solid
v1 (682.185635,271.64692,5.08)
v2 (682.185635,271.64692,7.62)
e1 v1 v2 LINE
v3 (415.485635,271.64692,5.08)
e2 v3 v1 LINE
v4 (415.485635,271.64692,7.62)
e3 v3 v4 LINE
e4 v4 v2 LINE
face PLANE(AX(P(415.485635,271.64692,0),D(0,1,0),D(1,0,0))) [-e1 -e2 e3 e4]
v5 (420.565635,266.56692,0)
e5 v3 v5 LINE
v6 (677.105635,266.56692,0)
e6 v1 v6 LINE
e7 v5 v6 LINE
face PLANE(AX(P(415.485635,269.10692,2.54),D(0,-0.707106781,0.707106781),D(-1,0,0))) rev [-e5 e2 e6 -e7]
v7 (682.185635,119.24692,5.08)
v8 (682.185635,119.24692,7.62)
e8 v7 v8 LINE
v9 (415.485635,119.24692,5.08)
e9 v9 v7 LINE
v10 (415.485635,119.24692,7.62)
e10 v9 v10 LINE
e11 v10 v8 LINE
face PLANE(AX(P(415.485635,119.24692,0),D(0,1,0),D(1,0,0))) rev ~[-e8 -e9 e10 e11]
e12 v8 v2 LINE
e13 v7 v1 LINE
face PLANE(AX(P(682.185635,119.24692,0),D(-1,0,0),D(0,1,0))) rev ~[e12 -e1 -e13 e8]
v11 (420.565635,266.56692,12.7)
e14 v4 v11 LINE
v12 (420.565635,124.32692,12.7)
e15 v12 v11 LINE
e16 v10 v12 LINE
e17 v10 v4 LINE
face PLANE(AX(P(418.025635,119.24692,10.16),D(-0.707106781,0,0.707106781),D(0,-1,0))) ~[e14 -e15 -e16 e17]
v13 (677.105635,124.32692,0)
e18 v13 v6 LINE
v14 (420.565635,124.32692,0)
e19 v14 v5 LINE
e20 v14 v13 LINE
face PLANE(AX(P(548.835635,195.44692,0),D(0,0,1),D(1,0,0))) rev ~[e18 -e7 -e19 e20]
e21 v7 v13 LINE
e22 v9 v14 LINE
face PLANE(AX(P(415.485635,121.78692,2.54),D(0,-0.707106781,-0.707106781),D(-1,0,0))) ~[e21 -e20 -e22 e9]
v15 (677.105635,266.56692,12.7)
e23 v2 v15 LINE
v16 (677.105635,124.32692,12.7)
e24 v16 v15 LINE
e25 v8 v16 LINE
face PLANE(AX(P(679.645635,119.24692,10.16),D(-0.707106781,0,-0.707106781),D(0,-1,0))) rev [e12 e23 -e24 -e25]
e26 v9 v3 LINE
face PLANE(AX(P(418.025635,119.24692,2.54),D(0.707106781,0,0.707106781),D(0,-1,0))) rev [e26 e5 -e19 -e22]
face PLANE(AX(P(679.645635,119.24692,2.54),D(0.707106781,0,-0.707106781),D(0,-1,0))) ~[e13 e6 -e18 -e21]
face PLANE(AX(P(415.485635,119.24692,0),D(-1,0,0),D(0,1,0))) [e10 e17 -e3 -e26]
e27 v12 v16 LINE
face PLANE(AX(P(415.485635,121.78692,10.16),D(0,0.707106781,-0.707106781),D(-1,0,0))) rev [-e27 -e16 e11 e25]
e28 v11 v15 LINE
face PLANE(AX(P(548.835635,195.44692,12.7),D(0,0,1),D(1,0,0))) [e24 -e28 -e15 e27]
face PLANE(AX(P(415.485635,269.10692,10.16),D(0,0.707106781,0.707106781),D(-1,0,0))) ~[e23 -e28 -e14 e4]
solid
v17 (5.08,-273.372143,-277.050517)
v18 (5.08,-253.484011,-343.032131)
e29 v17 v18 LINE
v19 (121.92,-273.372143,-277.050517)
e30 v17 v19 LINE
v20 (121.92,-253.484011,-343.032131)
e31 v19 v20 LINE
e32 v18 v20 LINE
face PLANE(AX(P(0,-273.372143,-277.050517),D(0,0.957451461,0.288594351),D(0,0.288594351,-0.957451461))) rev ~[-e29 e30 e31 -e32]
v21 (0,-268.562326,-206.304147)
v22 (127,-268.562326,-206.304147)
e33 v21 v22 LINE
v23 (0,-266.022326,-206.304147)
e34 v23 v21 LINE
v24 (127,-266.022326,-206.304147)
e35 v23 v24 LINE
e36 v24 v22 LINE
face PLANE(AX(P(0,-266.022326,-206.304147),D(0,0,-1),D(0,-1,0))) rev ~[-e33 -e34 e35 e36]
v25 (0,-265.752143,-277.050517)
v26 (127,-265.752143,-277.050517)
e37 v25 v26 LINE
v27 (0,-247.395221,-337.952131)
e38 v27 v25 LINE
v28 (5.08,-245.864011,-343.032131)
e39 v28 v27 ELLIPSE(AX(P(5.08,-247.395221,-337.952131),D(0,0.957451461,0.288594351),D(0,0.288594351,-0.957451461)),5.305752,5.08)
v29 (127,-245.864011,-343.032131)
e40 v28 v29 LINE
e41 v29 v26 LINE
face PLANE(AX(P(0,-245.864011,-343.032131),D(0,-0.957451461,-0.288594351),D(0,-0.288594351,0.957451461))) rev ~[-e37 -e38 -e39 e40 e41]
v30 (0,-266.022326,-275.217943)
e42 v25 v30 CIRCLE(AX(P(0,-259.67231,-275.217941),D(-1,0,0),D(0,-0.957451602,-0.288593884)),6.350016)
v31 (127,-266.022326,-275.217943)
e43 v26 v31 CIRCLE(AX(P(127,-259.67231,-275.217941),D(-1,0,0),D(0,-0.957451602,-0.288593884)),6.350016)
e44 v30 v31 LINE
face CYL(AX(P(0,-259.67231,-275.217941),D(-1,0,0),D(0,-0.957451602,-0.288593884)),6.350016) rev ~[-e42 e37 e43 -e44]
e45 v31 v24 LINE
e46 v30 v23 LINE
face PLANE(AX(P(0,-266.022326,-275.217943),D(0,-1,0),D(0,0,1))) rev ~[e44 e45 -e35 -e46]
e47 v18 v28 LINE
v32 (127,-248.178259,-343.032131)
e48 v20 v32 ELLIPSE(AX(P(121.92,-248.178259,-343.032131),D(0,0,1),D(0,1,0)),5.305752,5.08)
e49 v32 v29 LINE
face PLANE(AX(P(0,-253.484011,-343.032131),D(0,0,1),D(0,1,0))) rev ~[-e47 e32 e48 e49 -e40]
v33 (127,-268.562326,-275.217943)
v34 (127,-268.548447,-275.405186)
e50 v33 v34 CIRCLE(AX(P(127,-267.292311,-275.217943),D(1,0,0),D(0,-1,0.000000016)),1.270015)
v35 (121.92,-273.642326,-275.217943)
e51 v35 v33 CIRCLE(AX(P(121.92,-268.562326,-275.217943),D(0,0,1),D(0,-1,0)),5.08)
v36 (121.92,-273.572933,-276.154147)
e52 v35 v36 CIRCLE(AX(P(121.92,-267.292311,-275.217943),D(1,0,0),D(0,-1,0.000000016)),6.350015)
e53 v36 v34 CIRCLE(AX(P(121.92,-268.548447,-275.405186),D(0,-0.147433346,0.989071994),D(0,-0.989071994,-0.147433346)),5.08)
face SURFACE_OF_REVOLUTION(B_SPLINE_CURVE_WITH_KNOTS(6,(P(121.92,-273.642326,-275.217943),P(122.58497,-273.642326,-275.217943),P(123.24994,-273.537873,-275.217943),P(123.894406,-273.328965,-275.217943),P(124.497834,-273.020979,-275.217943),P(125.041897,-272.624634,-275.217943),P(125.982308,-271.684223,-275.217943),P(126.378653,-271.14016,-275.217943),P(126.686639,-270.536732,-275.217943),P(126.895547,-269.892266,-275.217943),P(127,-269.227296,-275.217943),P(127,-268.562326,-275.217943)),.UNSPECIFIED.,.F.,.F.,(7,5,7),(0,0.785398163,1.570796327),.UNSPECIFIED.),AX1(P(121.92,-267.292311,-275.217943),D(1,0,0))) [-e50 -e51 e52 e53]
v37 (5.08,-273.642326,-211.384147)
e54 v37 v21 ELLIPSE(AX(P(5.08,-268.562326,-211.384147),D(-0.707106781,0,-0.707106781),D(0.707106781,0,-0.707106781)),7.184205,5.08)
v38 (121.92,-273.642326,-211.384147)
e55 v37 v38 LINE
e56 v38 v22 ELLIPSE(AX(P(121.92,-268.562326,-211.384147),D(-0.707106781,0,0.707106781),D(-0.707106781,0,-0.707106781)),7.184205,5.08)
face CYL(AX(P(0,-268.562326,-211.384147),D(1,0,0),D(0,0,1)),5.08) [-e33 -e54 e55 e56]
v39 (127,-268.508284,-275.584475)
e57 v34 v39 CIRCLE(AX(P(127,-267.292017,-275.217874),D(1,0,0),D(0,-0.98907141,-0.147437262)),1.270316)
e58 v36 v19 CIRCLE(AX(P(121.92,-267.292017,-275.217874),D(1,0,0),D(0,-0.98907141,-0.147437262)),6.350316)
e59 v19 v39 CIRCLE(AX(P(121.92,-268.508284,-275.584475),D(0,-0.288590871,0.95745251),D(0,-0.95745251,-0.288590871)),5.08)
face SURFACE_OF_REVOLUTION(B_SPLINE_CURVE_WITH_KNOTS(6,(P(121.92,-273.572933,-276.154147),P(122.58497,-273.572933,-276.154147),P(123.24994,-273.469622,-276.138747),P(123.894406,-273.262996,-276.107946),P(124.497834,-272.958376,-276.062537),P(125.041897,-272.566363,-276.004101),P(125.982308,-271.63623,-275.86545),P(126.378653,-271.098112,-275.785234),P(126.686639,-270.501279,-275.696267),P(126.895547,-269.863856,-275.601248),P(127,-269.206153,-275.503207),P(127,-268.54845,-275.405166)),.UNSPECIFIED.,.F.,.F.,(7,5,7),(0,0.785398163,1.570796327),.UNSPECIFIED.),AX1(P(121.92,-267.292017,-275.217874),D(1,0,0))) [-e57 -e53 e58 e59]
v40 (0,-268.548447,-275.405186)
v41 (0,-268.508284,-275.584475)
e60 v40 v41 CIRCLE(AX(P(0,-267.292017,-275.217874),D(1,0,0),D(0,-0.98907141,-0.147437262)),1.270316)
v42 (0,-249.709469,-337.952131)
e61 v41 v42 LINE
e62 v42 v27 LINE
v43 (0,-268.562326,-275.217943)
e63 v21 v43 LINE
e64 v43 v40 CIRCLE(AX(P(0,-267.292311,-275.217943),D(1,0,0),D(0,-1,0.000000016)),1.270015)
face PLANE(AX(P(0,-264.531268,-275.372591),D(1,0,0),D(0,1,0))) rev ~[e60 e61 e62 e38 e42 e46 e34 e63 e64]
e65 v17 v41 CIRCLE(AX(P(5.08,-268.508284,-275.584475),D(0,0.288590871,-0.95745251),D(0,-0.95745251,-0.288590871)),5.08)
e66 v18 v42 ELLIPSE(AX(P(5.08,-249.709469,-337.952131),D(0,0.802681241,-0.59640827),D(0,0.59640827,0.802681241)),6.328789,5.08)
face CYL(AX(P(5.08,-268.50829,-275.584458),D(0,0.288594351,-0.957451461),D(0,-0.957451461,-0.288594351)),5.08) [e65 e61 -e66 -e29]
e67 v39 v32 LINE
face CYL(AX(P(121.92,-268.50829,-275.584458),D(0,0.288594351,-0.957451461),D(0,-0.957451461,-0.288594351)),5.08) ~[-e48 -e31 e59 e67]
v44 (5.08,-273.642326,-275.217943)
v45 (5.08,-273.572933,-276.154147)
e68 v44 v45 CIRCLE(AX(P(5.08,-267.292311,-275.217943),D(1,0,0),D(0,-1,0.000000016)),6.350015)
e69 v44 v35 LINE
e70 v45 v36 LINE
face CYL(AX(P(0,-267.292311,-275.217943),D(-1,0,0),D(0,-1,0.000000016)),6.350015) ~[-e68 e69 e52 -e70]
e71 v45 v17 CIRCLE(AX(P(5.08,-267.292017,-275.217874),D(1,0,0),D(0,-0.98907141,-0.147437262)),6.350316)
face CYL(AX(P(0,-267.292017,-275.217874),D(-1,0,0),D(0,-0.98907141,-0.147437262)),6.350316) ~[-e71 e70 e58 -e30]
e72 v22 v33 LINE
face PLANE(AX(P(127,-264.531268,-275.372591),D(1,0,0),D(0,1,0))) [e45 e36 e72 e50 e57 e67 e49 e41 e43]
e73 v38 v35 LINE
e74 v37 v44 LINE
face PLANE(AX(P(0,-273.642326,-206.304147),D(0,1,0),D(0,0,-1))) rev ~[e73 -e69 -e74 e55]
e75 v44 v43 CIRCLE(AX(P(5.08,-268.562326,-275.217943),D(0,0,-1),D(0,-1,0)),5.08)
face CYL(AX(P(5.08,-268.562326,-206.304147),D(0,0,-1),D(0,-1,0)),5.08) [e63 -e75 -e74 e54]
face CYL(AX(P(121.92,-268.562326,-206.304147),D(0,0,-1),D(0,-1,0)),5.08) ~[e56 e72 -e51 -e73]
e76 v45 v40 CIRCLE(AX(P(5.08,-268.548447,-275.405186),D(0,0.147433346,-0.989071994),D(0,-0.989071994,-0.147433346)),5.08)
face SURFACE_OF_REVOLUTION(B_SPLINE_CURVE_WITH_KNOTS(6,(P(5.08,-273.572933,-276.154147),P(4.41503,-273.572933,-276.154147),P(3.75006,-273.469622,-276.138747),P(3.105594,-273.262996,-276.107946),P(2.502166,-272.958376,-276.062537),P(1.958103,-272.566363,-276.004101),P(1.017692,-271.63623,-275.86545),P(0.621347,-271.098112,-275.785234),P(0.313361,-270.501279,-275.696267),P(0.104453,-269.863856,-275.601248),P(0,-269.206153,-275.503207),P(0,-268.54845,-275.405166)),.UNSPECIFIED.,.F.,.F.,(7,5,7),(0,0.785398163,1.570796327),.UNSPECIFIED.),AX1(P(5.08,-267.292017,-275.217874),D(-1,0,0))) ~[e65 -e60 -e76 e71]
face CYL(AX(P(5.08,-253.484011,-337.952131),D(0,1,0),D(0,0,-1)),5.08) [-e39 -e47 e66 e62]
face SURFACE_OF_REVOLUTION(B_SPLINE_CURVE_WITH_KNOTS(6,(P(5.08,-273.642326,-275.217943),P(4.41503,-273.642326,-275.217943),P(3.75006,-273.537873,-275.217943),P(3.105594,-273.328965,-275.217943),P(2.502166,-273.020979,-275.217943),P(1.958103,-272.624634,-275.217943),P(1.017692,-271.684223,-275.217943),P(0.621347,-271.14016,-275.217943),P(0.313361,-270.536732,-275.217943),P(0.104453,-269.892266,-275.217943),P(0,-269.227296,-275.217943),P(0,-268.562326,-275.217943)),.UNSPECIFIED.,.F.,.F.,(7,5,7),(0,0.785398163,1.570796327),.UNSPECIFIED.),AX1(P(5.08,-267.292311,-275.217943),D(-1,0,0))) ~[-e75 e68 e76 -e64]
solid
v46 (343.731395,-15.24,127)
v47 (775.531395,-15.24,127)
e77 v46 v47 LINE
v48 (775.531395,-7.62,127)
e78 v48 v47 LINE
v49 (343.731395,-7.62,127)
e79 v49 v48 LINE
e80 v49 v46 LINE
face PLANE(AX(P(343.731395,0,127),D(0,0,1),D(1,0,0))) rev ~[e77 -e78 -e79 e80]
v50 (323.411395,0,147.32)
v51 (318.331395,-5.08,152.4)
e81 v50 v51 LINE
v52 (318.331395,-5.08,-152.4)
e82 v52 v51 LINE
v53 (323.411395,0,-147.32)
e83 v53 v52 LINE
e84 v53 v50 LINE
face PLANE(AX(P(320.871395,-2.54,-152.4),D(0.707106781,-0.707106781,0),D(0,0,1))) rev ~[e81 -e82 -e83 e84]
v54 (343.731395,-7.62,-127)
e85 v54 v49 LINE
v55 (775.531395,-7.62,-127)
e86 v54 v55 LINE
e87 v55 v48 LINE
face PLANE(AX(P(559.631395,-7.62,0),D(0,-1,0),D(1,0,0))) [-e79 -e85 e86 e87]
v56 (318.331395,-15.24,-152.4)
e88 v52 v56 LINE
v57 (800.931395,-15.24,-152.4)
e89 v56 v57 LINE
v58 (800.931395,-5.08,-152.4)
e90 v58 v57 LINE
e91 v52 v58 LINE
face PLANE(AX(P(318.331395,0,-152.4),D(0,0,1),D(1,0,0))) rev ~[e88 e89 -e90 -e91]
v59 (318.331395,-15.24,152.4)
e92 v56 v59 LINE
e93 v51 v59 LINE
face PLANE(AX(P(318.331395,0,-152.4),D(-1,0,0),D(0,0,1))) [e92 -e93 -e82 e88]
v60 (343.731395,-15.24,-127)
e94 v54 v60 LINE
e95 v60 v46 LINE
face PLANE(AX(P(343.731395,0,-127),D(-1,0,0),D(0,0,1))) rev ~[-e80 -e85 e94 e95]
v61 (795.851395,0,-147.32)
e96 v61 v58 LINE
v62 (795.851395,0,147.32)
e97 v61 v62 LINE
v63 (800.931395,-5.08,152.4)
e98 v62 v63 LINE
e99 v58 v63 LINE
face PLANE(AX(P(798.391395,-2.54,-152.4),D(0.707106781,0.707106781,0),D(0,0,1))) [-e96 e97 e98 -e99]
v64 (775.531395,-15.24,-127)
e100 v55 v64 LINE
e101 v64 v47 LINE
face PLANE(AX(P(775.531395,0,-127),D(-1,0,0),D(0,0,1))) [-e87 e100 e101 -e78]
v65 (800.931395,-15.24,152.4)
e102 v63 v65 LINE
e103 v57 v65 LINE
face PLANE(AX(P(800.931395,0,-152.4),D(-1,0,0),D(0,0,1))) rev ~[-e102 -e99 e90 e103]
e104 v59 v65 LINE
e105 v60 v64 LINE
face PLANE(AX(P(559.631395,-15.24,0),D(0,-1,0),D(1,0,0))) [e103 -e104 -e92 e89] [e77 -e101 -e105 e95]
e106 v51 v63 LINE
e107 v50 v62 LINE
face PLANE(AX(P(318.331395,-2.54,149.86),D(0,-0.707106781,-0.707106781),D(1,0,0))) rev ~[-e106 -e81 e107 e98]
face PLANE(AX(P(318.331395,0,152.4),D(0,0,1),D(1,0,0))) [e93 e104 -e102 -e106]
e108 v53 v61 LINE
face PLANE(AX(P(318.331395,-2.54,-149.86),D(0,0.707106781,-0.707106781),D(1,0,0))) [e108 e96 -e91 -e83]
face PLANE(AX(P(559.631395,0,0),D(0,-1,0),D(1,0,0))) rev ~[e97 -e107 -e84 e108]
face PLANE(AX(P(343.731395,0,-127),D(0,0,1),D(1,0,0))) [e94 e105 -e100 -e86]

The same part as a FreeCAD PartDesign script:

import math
import FreeCAD as App
import Part
import Sketcher
Q = App.Units.Quantity


def edges_at(feature, points):
    """Names of the edges that pass closest to the given points."""
    edges = feature.Shape.Edges
    near = lambda p: min(range(len(edges)), key=lambda i: edges[i].distToShape(Part.Vertex(*p))[0])
    return sorted({f"Edge{near(p) + 1}" for p in points})

doc = App.newDocument("Part")
body = doc.addObject("PartDesign::Body", "Body")

# Sketch on XZ plane
sketch1 = body.newObject("Sketcher::SketchObject", "Sketch")
sketch1.AttachmentSupport = (doc.getObject("XZ_Plane"), [""])
sketch1.MapMode = "FlatFace"
sketch1.addGeometry([
    Part.LineSegment(App.Vector(318, 152, 0), App.Vector(318, -152, 0)),  # 0
    Part.LineSegment(App.Vector(318, -152, 0), App.Vector(801, -152, 0)),  # 1
    Part.LineSegment(App.Vector(801, -152, 0), App.Vector(801, 152, 0)),  # 2
    Part.LineSegment(App.Vector(801, 152, 0), App.Vector(318, 152, 0)),  # 3
    Part.LineSegment(App.Vector(776, -127, 0), App.Vector(344, -127, 0)),  # 4
    Part.LineSegment(App.Vector(344, -127, 0), App.Vector(344, 127, 0)),  # 5
    Part.LineSegment(App.Vector(344, 127, 0), App.Vector(776, 127, 0)),  # 6
    Part.LineSegment(App.Vector(776, 127, 0), App.Vector(776, -127, 0)),  # 7
], False)
sketch1.addConstraint([
    Sketcher.Constraint("Coincident", 0, 2, 1, 1),
    Sketcher.Constraint("Coincident", 1, 2, 2, 1),
    Sketcher.Constraint("Coincident", 2, 2, 3, 1),
    Sketcher.Constraint("Coincident", 3, 2, 0, 1),
    Sketcher.Constraint("Coincident", 4, 2, 5, 1),
    Sketcher.Constraint("Coincident", 5, 2, 6, 1),
    Sketcher.Constraint("Coincident", 6, 2, 7, 1),
    Sketcher.Constraint("Coincident", 7, 2, 4, 1),
    Sketcher.Constraint("Vertical", 0),
    Sketcher.Constraint("Horizontal", 1),
    Sketcher.Constraint("Vertical", 2),
    Sketcher.Constraint("Horizontal", 3),
    Sketcher.Constraint("Horizontal", 4),
    Sketcher.Constraint("Vertical", 5),
    Sketcher.Constraint("Horizontal", 6),
    Sketcher.Constraint("Vertical", 7),
    Sketcher.Constraint("DistanceX", 1, 1, 1, 2, Q("19 in")),
    Sketcher.Constraint("DistanceX", 4, 2, 4, 1, Q("17 in")),
    Sketcher.Constraint("DistanceY", 0, 2, 0, 1, Q("12 in")),
    Sketcher.Constraint("DistanceY", 5, 1, 5, 2, Q("10 in")),
    Sketcher.Constraint("DistanceY", 0, 2, -1, 1, Q("6 in")),
    Sketcher.Constraint("DistanceY", 4, 2, -1, 1, Q("5 in")),
    Sketcher.Constraint("DistanceX", 0, 2, 4, 2, Q("1 in")),
    Sketcher.Constraint("DistanceX", -1, 1, 0, 2, 318.331395),
])
pad1 = body.newObject("PartDesign::Pad", "Pad")
pad1.Profile = sketch1
pad1.Length = Q("0.6 in")

# Sketch on XZ plane
sketch2 = body.newObject("Sketcher::SketchObject", "Sketch001")
sketch2.AttachmentSupport = (doc.getObject("XZ_Plane"), [""])
sketch2.MapMode = "FlatFace"
sketch2.addGeometry([
    Part.LineSegment(App.Vector(344, 127, 0), App.Vector(344, -127, 0)),
    Part.LineSegment(App.Vector(344, -127, 0), App.Vector(776, -127, 0)),
    Part.LineSegment(App.Vector(776, -127, 0), App.Vector(776, 127, 0)),
    Part.LineSegment(App.Vector(776, 127, 0), App.Vector(344, 127, 0)),
], False)
sketch2.addConstraint([
    Sketcher.Constraint("Coincident", 0, 2, 1, 1),
    Sketcher.Constraint("Coincident", 1, 2, 2, 1),
    Sketcher.Constraint("Coincident", 2, 2, 3, 1),
    Sketcher.Constraint("Coincident", 3, 2, 0, 1),
    Sketcher.Constraint("Vertical", 0),
    Sketcher.Constraint("Horizontal", 1),
    Sketcher.Constraint("Vertical", 2),
    Sketcher.Constraint("Horizontal", 3),
    Sketcher.Constraint("DistanceX", 1, 1, 1, 2, Q("17 in")),
    Sketcher.Constraint("DistanceY", 0, 2, 0, 1, Q("10 in")),
    Sketcher.Constraint("DistanceY", 0, 2, -1, 1, Q("5 in")),
    Sketcher.Constraint("DistanceX", -1, 1, 0, 2, 343.731395),
])
pad2 = body.newObject("PartDesign::Pad", "Pad001")
pad2.Profile = sketch2
pad2.Length = Q("0.3 in")
doc.recompute()

chamfer = body.newObject("PartDesign::Chamfer", "Chamfer")
chamfer.Base = (pad2, edges_at(pad2, [
    (318.331, 0, 0),
    (559.631, 0, -152.4),
    (800.931, 0, 0),
    (559.631, 0, 152.4),
]))
chamfer.Size = Q("0.2 in")
body2 = doc.addObject("PartDesign::Body", "Body001")

# Sketch on XY plane
sketch3 = body2.newObject("Sketcher::SketchObject", "Sketch002")
sketch3.AttachmentSupport = (doc.getObject("XY_Plane001"), [""])
sketch3.MapMode = "FlatFace"
sketch3.addGeometry([
    Part.LineSegment(App.Vector(415, 272, 0), App.Vector(415, 119, 0)),
    Part.LineSegment(App.Vector(415, 119, 0), App.Vector(682, 119, 0)),
    Part.LineSegment(App.Vector(682, 119, 0), App.Vector(682, 272, 0)),
    Part.LineSegment(App.Vector(682, 272, 0), App.Vector(415, 272, 0)),
], False)
sketch3.addConstraint([
    Sketcher.Constraint("Coincident", 0, 2, 1, 1),
    Sketcher.Constraint("Coincident", 1, 2, 2, 1),
    Sketcher.Constraint("Coincident", 2, 2, 3, 1),
    Sketcher.Constraint("Coincident", 3, 2, 0, 1),
    Sketcher.Constraint("Vertical", 0),
    Sketcher.Constraint("Horizontal", 1),
    Sketcher.Constraint("Vertical", 2),
    Sketcher.Constraint("Horizontal", 3),
    Sketcher.Constraint("DistanceY", 0, 2, 0, 1, Q("6 in")),
    Sketcher.Constraint("DistanceX", 1, 1, 1, 2, Q("10.5 in")),
    Sketcher.Constraint("DistanceY", -1, 1, 0, 2, 119.24692),
    Sketcher.Constraint("DistanceX", -1, 1, 0, 2, 415.485635),
])
pad3 = body2.newObject("PartDesign::Pad", "Pad002")
pad3.Profile = sketch3
pad3.Length = Q("0.5 in")
doc.recompute()

chamfer2 = body2.newObject("PartDesign::Chamfer", "Chamfer001")
chamfer2.Base = (pad3, edges_at(pad3, [
    (548.836, 271.647, 0),
    (548.836, 271.647, 12.7),
    (415.486, 195.447, 0),
    (415.486, 195.447, 12.7),
    (682.186, 195.447, 0),
    (682.186, 195.447, 12.7),
    (548.836, 119.247, 12.7),
    (548.836, 119.247, 0),
]))
chamfer2.Size = Q("0.2 in")
body3 = doc.addObject("PartDesign::Body", "Body002")

# Sketch on YZ plane
sketch4 = body3.newObject("Sketcher::SketchObject", "Sketch003")
sketch4.AttachmentSupport = (doc.getObject("YZ_Plane002"), [""])
sketch4.MapMode = "FlatFace"
sketch4.addGeometry([
    Part.LineSegment(App.Vector(-266, -275.2, 0), App.Vector(-266, -206.3, 0)),  # 0
    Part.LineSegment(App.Vector(-266, -206.3, 0), App.Vector(-273.6, -206.3, 0)),  # 1
    Part.LineSegment(App.Vector(-273.6, -206.3, 0), App.Vector(-273.6, -275.2, 0)),  # 2
    Part.ArcOfCircle(Part.Circle(App.Vector(-267.3, -275.2, 0), App.Vector(0, 0, 1), 6.4), math.radians(180), math.radians(188.48)),  # 3
    Part.ArcOfCircle(Part.Circle(App.Vector(-267.3, -275.2, 0), App.Vector(0, 0, 1), 6.4), math.radians(-171.52), math.radians(-163.23)),  # 4
    Part.LineSegment(App.Vector(-273.4, -277.1, 0), App.Vector(-253.5, -343, 0)),  # 5
    Part.LineSegment(App.Vector(-253.5, -343, 0), App.Vector(-245.9, -343, 0)),  # 6
    Part.LineSegment(App.Vector(-245.9, -343, 0), App.Vector(-265.8, -277.1, 0)),  # 7
    Part.ArcOfCircle(Part.Circle(App.Vector(-259.7, -275.2, 0), App.Vector(0, 0, 1), 6.4), math.radians(-180), math.radians(-163.23)),  # 8
], False)
sketch4.addConstraint([
    Sketcher.Constraint("Coincident", 0, 2, 1, 1),
    Sketcher.Constraint("Coincident", 1, 2, 2, 1),
    Sketcher.Constraint("Tangent", 2, 2, 3, 1),
    Sketcher.Constraint("Coincident", 3, 2, 4, 1),
    Sketcher.Constraint("Coincident", 4, 2, 5, 1),
    Sketcher.Constraint("Coincident", 5, 2, 6, 1),
    Sketcher.Constraint("Coincident", 6, 2, 7, 1),
    Sketcher.Constraint("Tangent", 7, 2, 8, 2),
    Sketcher.Constraint("Tangent", 8, 1, 0, 1),
    Sketcher.Constraint("Vertical", 0),
    Sketcher.Constraint("Horizontal", 1),
    Sketcher.Constraint("Vertical", 2),
    Sketcher.Constraint("Horizontal", 6),
    Sketcher.Constraint("Equal", 3, 8),
    Sketcher.Constraint("Parallel", 5, 7),
    Sketcher.Constraint("Horizontal", 3, 3, 8, 3),
    Sketcher.Constraint("Horizontal", 4, 2, 7, 2),
    Sketcher.Constraint("Equal", 1, 6),
    Sketcher.Constraint("DistanceX", 1, 2, 1, 1, Q("0.3 in")),
    Sketcher.Constraint("DistanceY", 3, 2, 1, 2, Q("2.75 in")),
    Sketcher.Constraint("Radius", 3, 6.350015),
    Sketcher.Constraint("Radius", 4, 6.350316),
    Sketcher.Constraint("DistanceX", 8, 3, 5, 2, 6.188299),
    Sketcher.Constraint("DistanceY", 0, 1, 0, 2, 68.913796),
    Sketcher.Constraint("DistanceX", 3, 3, -1, 1, 267.292311),
    Sketcher.Constraint("DistanceY", 8, 3, -1, 1, 275.217941),
    Sketcher.Constraint("DistanceY", 5, 2, -1, 1, 343.032131),
])
pad4 = body3.newObject("PartDesign::Pad", "Pad003")
pad4.Profile = sketch4
pad4.Length = Q("5 in")
doc.recompute()

fillet = body3.newObject("PartDesign::Fillet", "Fillet")
fillet.Base = (pad4, edges_at(pad4, [
    (0, -249.674, -343.032),
    (0, -263.428, -310.041),
    (127, -273.642, -240.761),
    (63.5, -273.642, -206.304),
    (63.5, -273.642, -275.218),
]))
fillet.Radius = Q("0.2 in")

doc.recompute()
